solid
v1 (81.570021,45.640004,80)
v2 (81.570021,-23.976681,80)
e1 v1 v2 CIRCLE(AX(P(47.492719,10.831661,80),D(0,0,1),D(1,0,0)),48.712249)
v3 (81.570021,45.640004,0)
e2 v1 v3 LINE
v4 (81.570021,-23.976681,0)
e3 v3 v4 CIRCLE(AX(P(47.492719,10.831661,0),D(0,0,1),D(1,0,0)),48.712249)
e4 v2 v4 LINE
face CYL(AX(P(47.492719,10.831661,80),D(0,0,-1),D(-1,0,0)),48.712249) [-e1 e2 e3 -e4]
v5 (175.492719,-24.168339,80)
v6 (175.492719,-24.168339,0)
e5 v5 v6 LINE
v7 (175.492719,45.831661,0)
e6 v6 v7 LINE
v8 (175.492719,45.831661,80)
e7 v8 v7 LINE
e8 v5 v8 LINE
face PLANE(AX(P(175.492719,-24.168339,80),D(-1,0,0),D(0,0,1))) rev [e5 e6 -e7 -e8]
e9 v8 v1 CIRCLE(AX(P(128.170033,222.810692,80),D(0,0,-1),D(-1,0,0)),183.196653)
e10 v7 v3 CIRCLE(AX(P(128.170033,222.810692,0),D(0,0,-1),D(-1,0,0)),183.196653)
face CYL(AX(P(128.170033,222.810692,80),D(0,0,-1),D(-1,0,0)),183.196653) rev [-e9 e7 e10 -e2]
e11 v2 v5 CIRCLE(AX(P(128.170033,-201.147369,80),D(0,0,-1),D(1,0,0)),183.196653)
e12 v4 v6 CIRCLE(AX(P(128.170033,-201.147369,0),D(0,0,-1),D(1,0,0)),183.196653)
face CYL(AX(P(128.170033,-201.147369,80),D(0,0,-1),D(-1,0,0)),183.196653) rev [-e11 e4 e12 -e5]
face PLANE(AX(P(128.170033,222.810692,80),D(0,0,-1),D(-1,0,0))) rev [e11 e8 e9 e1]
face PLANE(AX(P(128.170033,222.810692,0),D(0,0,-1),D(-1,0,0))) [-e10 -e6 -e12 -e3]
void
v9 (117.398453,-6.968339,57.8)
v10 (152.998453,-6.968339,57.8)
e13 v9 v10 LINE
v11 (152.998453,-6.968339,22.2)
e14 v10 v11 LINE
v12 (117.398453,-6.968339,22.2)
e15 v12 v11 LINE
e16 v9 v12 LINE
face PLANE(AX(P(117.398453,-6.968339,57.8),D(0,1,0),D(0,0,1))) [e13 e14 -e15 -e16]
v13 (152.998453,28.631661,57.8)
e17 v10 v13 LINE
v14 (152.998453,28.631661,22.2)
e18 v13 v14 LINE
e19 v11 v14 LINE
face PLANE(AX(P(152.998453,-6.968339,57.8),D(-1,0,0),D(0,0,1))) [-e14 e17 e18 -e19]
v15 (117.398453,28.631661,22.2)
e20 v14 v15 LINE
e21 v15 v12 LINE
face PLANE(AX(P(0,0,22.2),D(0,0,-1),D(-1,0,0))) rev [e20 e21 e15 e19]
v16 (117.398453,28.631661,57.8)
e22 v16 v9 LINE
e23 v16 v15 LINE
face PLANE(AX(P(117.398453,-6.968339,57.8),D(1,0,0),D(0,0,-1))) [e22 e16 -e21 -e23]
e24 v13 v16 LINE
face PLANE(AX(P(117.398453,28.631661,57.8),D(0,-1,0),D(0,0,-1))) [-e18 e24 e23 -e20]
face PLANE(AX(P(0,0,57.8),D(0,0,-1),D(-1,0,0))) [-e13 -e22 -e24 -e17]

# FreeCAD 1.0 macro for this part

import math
import FreeCAD as App
import Part
import Sketcher

V = App.Vector

doc = App.newDocument("Part")
body = doc.addObject("PartDesign::Body", "Body")

# Sketch on XY plane
sketch1 = doc.addObject("Sketcher::SketchObject", "Sketch")
body.addObject(sketch1)
sketch1.AttachmentSupport = (doc.XY_Plane, [""])
sketch1.MapMode = "FlatFace"
sketch1.addGeometry(Part.LineSegment(V(175, -24, 0), V(175, 46, 0)), False)
sketch1.addGeometry(Part.ArcOfCircle(Part.Circle(V(128, 223, 0), V(0, 0, 1), 183), math.radians(-105), math.radians(-75)), False)
sketch1.addGeometry(Part.ArcOfCircle(Part.Circle(V(47, 11, 0), V(0, 0, 1), 49), math.radians(46), math.radians(314)), False)
sketch1.addGeometry(Part.ArcOfCircle(Part.Circle(V(128, -201, 0), V(0, 0, 1), 183), math.radians(75), math.radians(105)), False)
sketch1.addConstraint(Sketcher.Constraint("Coincident", 0, 2, 1, 2))
sketch1.addConstraint(Sketcher.Constraint("Coincident", 1, 1, 2, 1))
sketch1.addConstraint(Sketcher.Constraint("Coincident", 2, 2, 3, 2))
sketch1.addConstraint(Sketcher.Constraint("Coincident", 3, 1, 0, 1))
sketch1.addConstraint(Sketcher.Constraint("Vertical", 0))
sketch1.addConstraint(Sketcher.Constraint("Equal", 1, 3))
sketch1.addConstraint(Sketcher.Constraint("Vertical", 1, 3, 3, 3))
sketch1.addConstraint(Sketcher.Constraint("Vertical", 1, 1, 2, 2))
sketch1.addConstraint(Sketcher.Constraint("DistanceY", 0, 1, 0, 2, 70.0))
sketch1.addConstraint(Sketcher.Constraint("DistanceX", 2, 3, 0, 2, 128.0))
sketch1.addConstraint(Sketcher.Constraint("Radius", 2, 48.712249))
sketch1.addConstraint(Sketcher.Constraint("Radius", 1, 183.196653))
sketch1.addConstraint(Sketcher.Constraint("DistanceY", -1, 1, 1, 3, 222.810692))
sketch1.addConstraint(Sketcher.Constraint("DistanceX", -1, 1, 2, 3, 47.492719))
sketch1.addConstraint(Sketcher.Constraint("DistanceY", -1, 1, 2, 3, 10.831661))
pad1 = doc.addObject("PartDesign::Pad", "Pad")
body.addObject(pad1)
pad1.Profile = sketch1
pad1.Length = 80

# Sketch on XY plane
sketch2 = doc.addObject("Sketcher::SketchObject", "Sketch001")
body.addObject(sketch2)
sketch2.AttachmentSupport = (doc.XY_Plane, [""])
sketch2.MapMode = "FlatFace"
sketch2.AttachmentOffset = App.Placement(V(0, 0, 40), App.Rotation())
sketch2.addGeometry(Part.LineSegment(V(117, 29, 0), V(117, -7, 0)), False)
sketch2.addGeometry(Part.LineSegment(V(117, -7, 0), V(153, -7, 0)), False)
sketch2.addGeometry(Part.LineSegment(V(153, -7, 0), V(153, 29, 0)), False)
sketch2.addGeometry(Part.LineSegment(V(153, 29, 0), V(117, 29, 0)), False)
sketch2.addConstraint(Sketcher.Constraint("Coincident", 0, 2, 1, 1))
sketch2.addConstraint(Sketcher.Constraint("Coincident", 1, 2, 2, 1))
sketch2.addConstraint(Sketcher.Constraint("Coincident", 2, 2, 3, 1))
sketch2.addConstraint(Sketcher.Constraint("Coincident", 3, 2, 0, 1))
sketch2.addConstraint(Sketcher.Constraint("Vertical", 0))
sketch2.addConstraint(Sketcher.Constraint("Horizontal", 1))
sketch2.addConstraint(Sketcher.Constraint("Vertical", 2))
sketch2.addConstraint(Sketcher.Constraint("Horizontal", 3))
sketch2.addConstraint(Sketcher.Constraint("Equal", 3, 0))
sketch2.addConstraint(Sketcher.Constraint("DistanceX", 1, 1, 1, 2, 35.6))
sketch2.addConstraint(Sketcher.Constraint("DistanceY", 0, 2, -1, 1, 6.968339))
sketch2.addConstraint(Sketcher.Constraint("DistanceX", -1, 1, 0, 2, 117.398453))
pocket1 = doc.addObject("PartDesign::Pocket", "Pocket")
body.addObject(pocket1)
pocket1.Profile = sketch2
pocket1.Type = "TwoLengths"
pocket1.Length = 17.8
pocket1.Length2 = 17.8
pocket1.Reversed = True

doc.recompute()
